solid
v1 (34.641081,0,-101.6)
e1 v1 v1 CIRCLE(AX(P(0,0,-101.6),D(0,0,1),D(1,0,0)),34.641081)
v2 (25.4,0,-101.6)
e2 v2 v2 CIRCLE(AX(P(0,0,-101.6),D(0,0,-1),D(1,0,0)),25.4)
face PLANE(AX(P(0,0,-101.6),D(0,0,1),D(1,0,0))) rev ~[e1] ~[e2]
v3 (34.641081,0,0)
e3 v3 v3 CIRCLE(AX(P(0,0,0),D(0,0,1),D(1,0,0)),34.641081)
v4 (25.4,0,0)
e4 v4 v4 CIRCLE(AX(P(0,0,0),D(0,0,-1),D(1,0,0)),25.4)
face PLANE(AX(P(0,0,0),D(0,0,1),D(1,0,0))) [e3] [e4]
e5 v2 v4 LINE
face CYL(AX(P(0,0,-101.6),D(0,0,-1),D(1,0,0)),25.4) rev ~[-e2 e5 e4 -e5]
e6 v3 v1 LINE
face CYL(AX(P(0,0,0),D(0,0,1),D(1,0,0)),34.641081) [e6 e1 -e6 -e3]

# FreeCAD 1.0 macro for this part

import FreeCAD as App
import Part
import Sketcher
Q = App.Units.Quantity

doc = App.newDocument("Part")
body = doc.addObject("PartDesign::Body", "Body")

sketch1 = body.newObject("Sketcher::SketchObject", "Sketch")
sketch1.AttachmentSupport = (doc.getObject("XY_Plane"), [""])
sketch1.MapMode = "FlatFace"
sketch1.addGeometry(Part.Circle(App.Vector(0, 0, 0), App.Vector(0, 0, 1), 34.641081), False)
sketch1.addConstraint(Sketcher.Constraint("Coincident", 0, 3, -1, 1))
sketch1.addConstraint(Sketcher.Constraint("Diameter", 0, 69.282162))
pad1 = body.newObject("PartDesign::Pad", "Pad")
pad1.Profile = sketch1
pad1.Length = Q("4 in")
pad1.Reversed = True

sketch2 = body.newObject("Sketcher::SketchObject", "Sketch001")
sketch2.AttachmentSupport = (doc.getObject("XY_Plane"), [""])
sketch2.MapMode = "FlatFace"
sketch2.AttachmentOffset = App.Placement(App.Vector(0, 0, -4 * 25.4), App.Rotation())
sketch2.addGeometry(Part.Circle(App.Vector(0, 0, 0), App.Vector(0, 0, 1), 25.4), False)
sketch2.addConstraint(Sketcher.Constraint("Coincident", 0, 3, -1, 1))
sketch2.addConstraint(Sketcher.Constraint("Diameter", 0, Q("2 in")))
pocket1 = body.newObject("PartDesign::Pocket", "Pocket")
pocket1.Profile = sketch2
pocket1.Type = "ThroughAll"
pocket1.Reversed = True

doc.recompute()
